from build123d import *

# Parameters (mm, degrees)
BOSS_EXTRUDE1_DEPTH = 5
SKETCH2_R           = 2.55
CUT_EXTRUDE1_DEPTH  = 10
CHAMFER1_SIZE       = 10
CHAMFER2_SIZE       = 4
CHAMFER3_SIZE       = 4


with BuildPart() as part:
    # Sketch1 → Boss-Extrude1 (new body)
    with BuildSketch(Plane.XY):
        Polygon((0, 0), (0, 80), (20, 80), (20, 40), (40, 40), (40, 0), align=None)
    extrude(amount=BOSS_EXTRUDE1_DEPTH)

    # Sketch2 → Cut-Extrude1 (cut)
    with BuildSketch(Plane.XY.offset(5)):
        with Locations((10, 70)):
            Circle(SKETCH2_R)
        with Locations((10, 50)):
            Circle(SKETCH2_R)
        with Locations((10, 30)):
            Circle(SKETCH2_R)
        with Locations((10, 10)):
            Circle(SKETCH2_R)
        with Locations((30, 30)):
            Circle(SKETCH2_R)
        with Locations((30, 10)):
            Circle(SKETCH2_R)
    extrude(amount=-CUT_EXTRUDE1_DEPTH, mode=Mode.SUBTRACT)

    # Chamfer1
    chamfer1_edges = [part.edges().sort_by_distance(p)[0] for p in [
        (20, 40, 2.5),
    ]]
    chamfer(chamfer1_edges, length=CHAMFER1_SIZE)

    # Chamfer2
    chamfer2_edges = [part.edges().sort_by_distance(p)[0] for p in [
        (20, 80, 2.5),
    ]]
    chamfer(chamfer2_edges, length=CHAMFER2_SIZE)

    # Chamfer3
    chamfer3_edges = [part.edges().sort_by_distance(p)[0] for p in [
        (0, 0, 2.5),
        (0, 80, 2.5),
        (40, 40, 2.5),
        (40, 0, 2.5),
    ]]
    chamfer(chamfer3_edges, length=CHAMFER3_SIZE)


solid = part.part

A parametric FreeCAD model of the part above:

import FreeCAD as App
import Part
import Sketcher


def edges_at(feature, points):
    """Names of the edges that pass closest to the given points."""
    edges = feature.Shape.Edges
    near = lambda p: min(range(len(edges)), key=lambda i: edges[i].distToShape(Part.Vertex(*p))[0])
    return sorted({f"Edge{near(p) + 1}" for p in points})


def add_polygon(sketch, points):
    """Adds a closed chain of lines whose ends are joined by coincident constraints."""
    first, n = sketch.GeometryCount, len(points)
    for a, b in zip(points, points[1:] + points[:1]):
        sketch.addGeometry(Part.LineSegment(App.Vector(*a, 0), App.Vector(*b, 0)), False)
    for i in range(n):
        sketch.addConstraint(Sketcher.Constraint("Coincident", first + i, 2, first + (i + 1) % n, 1))

doc = App.newDocument("Part")
body = doc.addObject("PartDesign::Body", "Body")

sketch1 = body.newObject("Sketcher::SketchObject", "Sketch")
sketch1.AttachmentSupport = (doc.getObject("XY_Plane"), [""])
sketch1.MapMode = "FlatFace"
add_polygon(sketch1, [(0, 80), (0, 0), (40, 0), (40, 40), (20, 40), (20, 80)])
sketch1.addConstraint([
    Sketcher.Constraint("Vertical", 0),
    Sketcher.Constraint("Horizontal", 1),
    Sketcher.Constraint("Vertical", 2),
    Sketcher.Constraint("Horizontal", 3),
    Sketcher.Constraint("Vertical", 4),
    Sketcher.Constraint("Horizontal", 5),
    Sketcher.Constraint("Coincident", 0, 2, -1, 1),
    Sketcher.Constraint("Equal", 3, 5),
    Sketcher.Constraint("Equal", 1, 2),
    Sketcher.Constraint("Equal", 2, 4),
    Sketcher.Constraint("DistanceX", 1, 1, 1, 2, 40.0),
])
pad1 = body.newObject("PartDesign::Pad", "Pad")
pad1.Profile = sketch1
pad1.Length = 5

sketch2 = body.newObject("Sketcher::SketchObject", "Sketch001")
sketch2.AttachmentSupport = (doc.getObject("XY_Plane"), [""])
sketch2.MapMode = "FlatFace"
sketch2.AttachmentOffset = App.Placement(App.Vector(0, 0, 5), App.Rotation())
sketch2.addGeometry([
    Part.Circle(App.Vector(10, 70, 0), App.Vector(0, 0, 1), 2.5),
    Part.Circle(App.Vector(10, 50, 0), App.Vector(0, 0, 1), 2.5),
    Part.Circle(App.Vector(10, 30, 0), App.Vector(0, 0, 1), 2.5),
    Part.Circle(App.Vector(10, 10, 0), App.Vector(0, 0, 1), 2.5),
    Part.Circle(App.Vector(30, 30, 0), App.Vector(0, 0, 1), 2.5),
    Part.Circle(App.Vector(30, 10, 0), App.Vector(0, 0, 1), 2.5),
], False)
sketch2.addConstraint([
    Sketcher.Constraint("Equal", 0, 1),
    Sketcher.Constraint("Equal", 1, 2),
    Sketcher.Constraint("Equal", 2, 3),
    Sketcher.Constraint("Equal", 3, 4),
    Sketcher.Constraint("Equal", 4, 5),
    Sketcher.Constraint("Horizontal", 2, 3, 4, 3),
    Sketcher.Constraint("Horizontal", 3, 3, 5, 3),
    Sketcher.Constraint("Vertical", 0, 3, 1, 3),
    Sketcher.Constraint("Vertical", 1, 3, 2, 3),
    Sketcher.Constraint("Vertical", 2, 3, 3, 3),
    Sketcher.Constraint("Vertical", 4, 3, 5, 3),
    Sketcher.Constraint("Diameter", 0, 5.1),
    Sketcher.Constraint("DistanceX", -1, 1, 0, 3, 10.0),
    Sketcher.Constraint("DistanceY", -1, 1, 0, 3, 70.0),
    Sketcher.Constraint("DistanceY", -1, 1, 1, 3, 50.0),
    Sketcher.Constraint("DistanceY", -1, 1, 2, 3, 30.0),
    Sketcher.Constraint("DistanceY", -1, 1, 3, 3, 10.0),
    Sketcher.Constraint("DistanceX", -1, 1, 4, 3, 30.0),
])
pocket1 = body.newObject("PartDesign::Pocket", "Pocket")
pocket1.Profile = sketch2
pocket1.Length = 10
doc.recompute()

chamfer = body.newObject("PartDesign::Chamfer", "Chamfer")
chamfer.Base = (pocket1, edges_at(pocket1, [(20, 40, 2.5)]))
chamfer.Size = 10
doc.recompute()

chamfer2 = body.newObject("PartDesign::Chamfer", "Chamfer001")
chamfer2.Base = (chamfer, edges_at(chamfer, [(20, 80, 2.5)]))
chamfer2.Size = 4
doc.recompute()

chamfer3 = body.newObject("PartDesign::Chamfer", "Chamfer002")
chamfer3.Base = (chamfer2, edges_at(chamfer2, [
    (0, 0, 2.5),
    (0, 80, 2.5),
    (40, 40, 2.5),
    (40, 0, 2.5),
]))
chamfer3.Size = 4

doc.recompute()
